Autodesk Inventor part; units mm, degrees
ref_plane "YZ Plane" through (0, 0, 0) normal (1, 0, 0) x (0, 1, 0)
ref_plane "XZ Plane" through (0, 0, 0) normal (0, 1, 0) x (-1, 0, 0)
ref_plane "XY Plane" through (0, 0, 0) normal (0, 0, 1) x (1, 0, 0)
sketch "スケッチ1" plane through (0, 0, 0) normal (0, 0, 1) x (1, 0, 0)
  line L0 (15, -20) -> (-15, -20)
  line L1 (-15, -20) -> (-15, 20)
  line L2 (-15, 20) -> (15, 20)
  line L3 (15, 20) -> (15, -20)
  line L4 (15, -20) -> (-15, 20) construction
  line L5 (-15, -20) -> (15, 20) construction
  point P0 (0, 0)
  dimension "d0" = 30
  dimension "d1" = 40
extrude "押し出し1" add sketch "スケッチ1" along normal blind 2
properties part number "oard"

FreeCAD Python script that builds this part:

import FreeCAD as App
import Part
import Sketcher
Q = App.Units.Quantity


def add_polygon(sketch, points):
    """Adds a closed chain of lines whose ends are joined by coincident constraints."""
    first, n = sketch.GeometryCount, len(points)
    for a, b in zip(points, points[1:] + points[:1]):
        sketch.addGeometry(Part.LineSegment(App.Vector(*a, 0), App.Vector(*b, 0)), False)
    for i in range(n):
        sketch.addConstraint(Sketcher.Constraint("Coincident", first + i, 2, first + (i + 1) % n, 1))

doc = App.newDocument("Part")
body = doc.addObject("PartDesign::Body", "Body")

# Sketch on XY plane
sketch1 = doc.addObject("Sketcher::SketchObject", "Sketch")
body.addObject(sketch1)
sketch1.AttachmentSupport = (doc.XY_Plane, [""])
sketch1.MapMode = "FlatFace"
add_polygon(sketch1, [(-15, -20), (15, -20), (15, 20), (-15, 20)])  # lines 0-3
sketch1.addConstraint([
    Sketcher.Constraint("Horizontal", 0),
    Sketcher.Constraint("Vertical", 1),
    Sketcher.Constraint("Horizontal", 2),
    Sketcher.Constraint("Vertical", 3),
    Sketcher.Constraint("Symmetric", 0, 2, 2, 2, -1, 1),
    Sketcher.Constraint("DistanceX", 0, 1, 0, 2, Q("30 mm")),
    Sketcher.Constraint("DistanceY", 1, 1, 1, 2, Q("40 mm")),
])
pad1 = doc.addObject("PartDesign::Pad", "Pad")
body.addObject(pad1)
pad1.Profile = sketch1
pad1.Length = 2

doc.recompute()
